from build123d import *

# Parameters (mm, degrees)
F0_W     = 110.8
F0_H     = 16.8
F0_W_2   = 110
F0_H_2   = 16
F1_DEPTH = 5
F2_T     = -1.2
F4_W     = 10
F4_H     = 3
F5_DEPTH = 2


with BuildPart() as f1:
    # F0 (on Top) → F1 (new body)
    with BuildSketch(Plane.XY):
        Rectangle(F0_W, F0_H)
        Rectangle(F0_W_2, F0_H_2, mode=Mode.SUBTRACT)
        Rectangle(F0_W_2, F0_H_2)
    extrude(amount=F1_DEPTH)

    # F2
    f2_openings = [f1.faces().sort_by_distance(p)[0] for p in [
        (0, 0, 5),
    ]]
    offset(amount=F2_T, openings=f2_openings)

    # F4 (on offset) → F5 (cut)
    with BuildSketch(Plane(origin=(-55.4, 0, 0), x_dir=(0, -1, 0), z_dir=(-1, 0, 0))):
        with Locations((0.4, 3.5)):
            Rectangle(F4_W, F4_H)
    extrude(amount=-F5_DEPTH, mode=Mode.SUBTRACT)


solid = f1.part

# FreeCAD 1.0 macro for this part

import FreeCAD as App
import Part
import Sketcher

V = App.Vector
Q = App.Units.Quantity


def faces_at(feature, points):
    """Names of the faces that lie closest to the given points."""
    faces = feature.Shape.Faces
    near = lambda p: min(range(len(faces)), key=lambda i: faces[i].distToShape(Part.Vertex(*p))[0])
    return sorted({f"Face{near(p) + 1}" for p in points})

doc = App.newDocument("Part")
body = doc.addObject("PartDesign::Body", "Body")

# Sketch on XY plane
sketch1 = body.newObject("Sketcher::SketchObject", "Sketch")
sketch1.AttachmentSupport = (doc.getObject("XY_Plane"), [""])
sketch1.MapMode = "FlatFace"
sketch1.addGeometry([
    Part.LineSegment(V(-55.4, 8.4, 0), V(-55.4, -8.4, 0)),
    Part.LineSegment(V(-55.4, -8.4, 0), V(55.4, -8.4, 0)),
    Part.LineSegment(V(55.4, -8.4, 0), V(55.4, 8.4, 0)),
    Part.LineSegment(V(55.4, 8.4, 0), V(-55.4, 8.4, 0)),
], False)
sketch1.addConstraint([
    Sketcher.Constraint("Coincident", 0, 2, 1, 1),
    Sketcher.Constraint("Coincident", 1, 2, 2, 1),
    Sketcher.Constraint("Coincident", 2, 2, 3, 1),
    Sketcher.Constraint("Coincident", 3, 2, 0, 1),
    Sketcher.Constraint("Vertical", 0),
    Sketcher.Constraint("Horizontal", 1),
    Sketcher.Constraint("Vertical", 2),
    Sketcher.Constraint("Horizontal", 3),
    Sketcher.Constraint("Symmetric", 0, 2, 2, 2, -1, 1),
    Sketcher.Constraint("DistanceX", 1, 1, 1, 2, Q("110.8 mm")),
    Sketcher.Constraint("DistanceY", 0, 2, 0, 1, Q("16.8 mm")),
])
pad1 = body.newObject("PartDesign::Pad", "Pad")
pad1.Profile = sketch1
pad1.Length = 5
doc.recompute()

thickness = body.newObject("PartDesign::Thickness", "Thickness")
thickness.Base = (pad1, faces_at(pad1, [(0, 0, 5)]))
thickness.Value = 1.2
thickness.Reversed = True
thickness.Join = "Arc"

# Sketch on YZ plane
sketch2 = body.newObject("Sketcher::SketchObject", "Sketch001")
sketch2.AttachmentSupport = (doc.getObject("YZ_Plane"), [""])
sketch2.MapMode = "FlatFace"
sketch2.AttachmentOffset = App.Placement(V(0, 0, -55.4), App.Rotation())
sketch2.addGeometry([
    Part.LineSegment(V(4.6, 5, 0), V(4.6, 2, 0)),
    Part.LineSegment(V(4.6, 2, 0), V(-5.4, 2, 0)),
    Part.LineSegment(V(-5.4, 2, 0), V(-5.4, 5, 0)),
    Part.LineSegment(V(-5.4, 5, 0), V(4.6, 5, 0)),
], False)
sketch2.addConstraint([
    Sketcher.Constraint("Coincident", 0, 2, 1, 1),
    Sketcher.Constraint("Coincident", 1, 2, 2, 1),
    Sketcher.Constraint("Coincident", 2, 2, 3, 1),
    Sketcher.Constraint("Coincident", 3, 2, 0, 1),
    Sketcher.Constraint("Vertical", 0),
    Sketcher.Constraint("Horizontal", 1),
    Sketcher.Constraint("Vertical", 2),
    Sketcher.Constraint("Horizontal", 3),
    Sketcher.Constraint("DistanceX", 1, 2, 1, 1, Q("10 mm")),
    Sketcher.Constraint("DistanceY", 0, 2, 0, 1, Q("3 mm")),
    Sketcher.Constraint("DistanceY", -1, 1, 0, 2, Q("2 mm")),
    Sketcher.Constraint("DistanceX", -1, 1, 0, 2, Q("4.6 mm")),
])
pocket1 = body.newObject("PartDesign::Pocket", "Pocket")
pocket1.Profile = sketch2
pocket1.Length = 2
pocket1.Reversed = True

doc.recompute()
